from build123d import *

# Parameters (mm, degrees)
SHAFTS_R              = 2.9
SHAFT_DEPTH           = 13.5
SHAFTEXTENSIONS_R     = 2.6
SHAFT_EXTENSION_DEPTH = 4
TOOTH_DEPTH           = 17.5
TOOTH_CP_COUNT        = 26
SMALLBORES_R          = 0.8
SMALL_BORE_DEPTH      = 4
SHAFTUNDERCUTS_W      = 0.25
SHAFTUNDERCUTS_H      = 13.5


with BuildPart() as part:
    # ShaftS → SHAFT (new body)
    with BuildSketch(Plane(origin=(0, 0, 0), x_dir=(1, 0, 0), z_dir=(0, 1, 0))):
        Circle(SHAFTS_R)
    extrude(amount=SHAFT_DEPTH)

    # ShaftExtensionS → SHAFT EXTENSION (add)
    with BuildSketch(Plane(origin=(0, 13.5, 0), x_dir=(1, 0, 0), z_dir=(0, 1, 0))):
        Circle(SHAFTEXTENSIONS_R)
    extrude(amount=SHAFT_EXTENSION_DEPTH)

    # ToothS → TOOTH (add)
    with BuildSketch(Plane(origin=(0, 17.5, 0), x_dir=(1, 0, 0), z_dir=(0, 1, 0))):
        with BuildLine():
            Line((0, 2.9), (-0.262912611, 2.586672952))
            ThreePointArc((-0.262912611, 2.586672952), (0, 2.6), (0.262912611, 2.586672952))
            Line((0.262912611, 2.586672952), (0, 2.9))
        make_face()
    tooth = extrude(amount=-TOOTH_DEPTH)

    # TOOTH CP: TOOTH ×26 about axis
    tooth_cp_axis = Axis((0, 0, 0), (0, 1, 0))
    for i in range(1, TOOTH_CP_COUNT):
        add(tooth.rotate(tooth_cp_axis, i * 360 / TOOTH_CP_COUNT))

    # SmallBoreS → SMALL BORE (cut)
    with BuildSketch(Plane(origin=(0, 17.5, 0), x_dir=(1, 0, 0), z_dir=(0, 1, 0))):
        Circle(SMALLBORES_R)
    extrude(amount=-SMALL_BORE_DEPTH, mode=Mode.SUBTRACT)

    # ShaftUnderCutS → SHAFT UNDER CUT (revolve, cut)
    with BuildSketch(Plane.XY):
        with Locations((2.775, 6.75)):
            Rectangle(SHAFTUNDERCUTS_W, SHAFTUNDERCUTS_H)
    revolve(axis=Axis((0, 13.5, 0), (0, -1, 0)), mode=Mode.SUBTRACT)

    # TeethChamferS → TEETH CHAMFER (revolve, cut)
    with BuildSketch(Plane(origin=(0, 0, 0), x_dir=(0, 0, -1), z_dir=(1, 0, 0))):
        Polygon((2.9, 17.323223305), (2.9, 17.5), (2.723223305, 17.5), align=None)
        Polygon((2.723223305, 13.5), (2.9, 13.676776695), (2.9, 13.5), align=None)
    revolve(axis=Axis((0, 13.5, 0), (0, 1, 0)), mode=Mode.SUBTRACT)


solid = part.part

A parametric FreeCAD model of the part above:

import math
import FreeCAD as App
import Part
import Sketcher
from FreeCAD import Vector
Q = App.Units.Quantity

doc = App.newDocument("Part")
body = doc.addObject("PartDesign::Body", "Body")

# Sketch on XZ plane
sketch1 = body.newObject("Sketcher::SketchObject", "Sketch")
sketch1.AttachmentSupport = (doc.getObject("XZ_Plane"), [""])
sketch1.MapMode = "FlatFace"
sketch1.addGeometry(Part.Circle(Vector(0, 0, 0), Vector(0, 0, 1), 2.9), False)
sketch1.addConstraint(Sketcher.Constraint("Coincident", 0, 3, -1, 1))
sketch1.addConstraint(Sketcher.Constraint("Diameter", 0, Q("5.8 mm")))
pad1 = body.newObject("PartDesign::Pad", "Pad")
pad1.Profile = sketch1
pad1.Length = 13.5
pad1.Reversed = True

# Sketch on XZ plane
sketch2 = body.newObject("Sketcher::SketchObject", "Sketch001")
sketch2.AttachmentSupport = (doc.getObject("XZ_Plane"), [""])
sketch2.MapMode = "FlatFace"
sketch2.AttachmentOffset = App.Placement(Vector(0, 0, -13.5), App.Rotation())
sketch2.addGeometry(Part.Circle(Vector(0, 0, 0), Vector(0, 0, 1), 2.6), False)
sketch2.addConstraint(Sketcher.Constraint("Coincident", 0, 3, -1, 1))
sketch2.addConstraint(Sketcher.Constraint("Diameter", 0, Q("5.2 mm")))
pad2 = body.newObject("PartDesign::Pad", "Pad001")
pad2.Profile = sketch2
pad2.Length = 4
pad2.Reversed = True

# Sketch on XZ plane
sketch3 = body.newObject("Sketcher::SketchObject", "Sketch002")
sketch3.AttachmentSupport = (doc.getObject("XZ_Plane"), [""])
sketch3.MapMode = "FlatFace"
sketch3.AttachmentOffset = App.Placement(Vector(0, 0, -17.5), App.Rotation())
sketch3.addGeometry(Part.LineSegment(Vector(0, -2.9, 0), Vector(-0.26, -2.59, 0)), False)
sketch3.addGeometry(Part.ArcOfCircle(Part.Circle(Vector(0, 0, 0), Vector(0, 0, 1), 2.6), math.radians(-95.8), math.radians(-84.2)), False)
sketch3.addGeometry(Part.LineSegment(Vector(0.26, -2.59, 0), Vector(0, -2.9, 0)), False)
sketch3.addConstraint(Sketcher.Constraint("Coincident", 0, 2, 1, 1))
sketch3.addConstraint(Sketcher.Constraint("Coincident", 1, 2, 2, 1))
sketch3.addConstraint(Sketcher.Constraint("Coincident", 2, 2, 0, 1))
sketch3.addConstraint(Sketcher.Constraint("Coincident", 1, 3, -1, 1))
sketch3.addConstraint(Sketcher.Constraint("PointOnObject", 2, 2, -2))
sketch3.addConstraint(Sketcher.Constraint("Horizontal", 0, 2, 1, 2))
sketch3.addConstraint(Sketcher.Constraint("Radius", 1, Q("2.6 mm")))
sketch3.addConstraint(Sketcher.Constraint("Angle", 0, Q("130 deg")))
sketch3.addConstraint(Sketcher.Constraint("DistanceY", 2, 2, -1, 1, Q("2.9 mm")))
pad3 = body.newObject("PartDesign::Pad", "Pad002")
pad3.Profile = sketch3
pad3.Length = 17.5
doc.recompute()

polarpattern = body.newObject("PartDesign::PolarPattern", "PolarPattern")
polarpattern.Originals = [pad3]
polarpattern.Axis = (doc.getObject("Y_Axis"), [""])
polarpattern.Angle = 360
polarpattern.Occurrences = 26
body.Tip = polarpattern

# Sketch on XZ plane
sketch4 = body.newObject("Sketcher::SketchObject", "Sketch003")
sketch4.AttachmentSupport = (doc.getObject("XZ_Plane"), [""])
sketch4.MapMode = "FlatFace"
sketch4.AttachmentOffset = App.Placement(Vector(0, 0, -17.5), App.Rotation())
sketch4.addGeometry(Part.Circle(Vector(0, 0, 0), Vector(0, 0, 1), 0.8), False)
sketch4.addConstraint(Sketcher.Constraint("Coincident", 0, 3, -1, 1))
sketch4.addConstraint(Sketcher.Constraint("Diameter", 0, Q("1.6 mm")))
pocket1 = body.newObject("PartDesign::Pocket", "Pocket")
pocket1.Profile = sketch4
pocket1.Length = 4
pocket1.Reversed = True

# Sketch on XY plane
sketch5 = body.newObject("Sketcher::SketchObject", "Sketch004")
sketch5.AttachmentSupport = (doc.getObject("XY_Plane"), [""])
sketch5.MapMode = "FlatFace"
sketch5.addGeometry(Part.LineSegment(Vector(2.65, 13.5, 0), Vector(2.65, 0, 0)), False)
sketch5.addGeometry(Part.LineSegment(Vector(2.65, 0, 0), Vector(2.9, 0, 0)), False)
sketch5.addGeometry(Part.LineSegment(Vector(2.9, 0, 0), Vector(2.9, 13.5, 0)), False)
sketch5.addGeometry(Part.LineSegment(Vector(2.9, 13.5, 0), Vector(2.65, 13.5, 0)), False)
sketch5.addConstraint(Sketcher.Constraint("Coincident", 0, 2, 1, 1))
sketch5.addConstraint(Sketcher.Constraint("Coincident", 1, 2, 2, 1))
sketch5.addConstraint(Sketcher.Constraint("Coincident", 2, 2, 3, 1))
sketch5.addConstraint(Sketcher.Constraint("Coincident", 3, 2, 0, 1))
sketch5.addConstraint(Sketcher.Constraint("Vertical", 0))
sketch5.addConstraint(Sketcher.Constraint("Horizontal", 1))
sketch5.addConstraint(Sketcher.Constraint("Vertical", 2))
sketch5.addConstraint(Sketcher.Constraint("Horizontal", 3))
sketch5.addConstraint(Sketcher.Constraint("PointOnObject", 0, 2, -1))
sketch5.addConstraint(Sketcher.Constraint("DistanceY", 0, 2, 0, 1, Q("13.5 mm")))
sketch5.addConstraint(Sketcher.Constraint("DistanceX", 1, 1, 1, 2, Q("0.25 mm")))
sketch5.addConstraint(Sketcher.Constraint("DistanceX", -1, 1, 1, 2, Q("2.9 mm")))
groove = body.newObject("PartDesign::Groove", "Groove")
groove.Profile = sketch5
groove.ReferenceAxis = (sketch5, ["V_Axis"])
groove.Angle = 360

# Sketch on YZ plane
sketch6 = body.newObject("Sketcher::SketchObject", "Sketch005")
sketch6.AttachmentSupport = (doc.getObject("YZ_Plane"), [""])
sketch6.MapMode = "FlatFace"
sketch6.addGeometry(Part.LineSegment(Vector(17.32, -2.9, 0), Vector(17.5, -2.9, 0)), False)
sketch6.addGeometry(Part.LineSegment(Vector(17.5, -2.9, 0), Vector(17.5, -2.72, 0)), False)
sketch6.addGeometry(Part.LineSegment(Vector(17.5, -2.72, 0), Vector(17.32, -2.9, 0)), False)
sketch6.addGeometry(Part.LineSegment(Vector(13.68, -2.9, 0), Vector(13.5, -2.72, 0)), False)
sketch6.addGeometry(Part.LineSegment(Vector(13.5, -2.72, 0), Vector(13.5, -2.9, 0)), False)
sketch6.addGeometry(Part.LineSegment(Vector(13.5, -2.9, 0), Vector(13.68, -2.9, 0)), False)
sketch6.addConstraint(Sketcher.Constraint("Coincident", 0, 2, 1, 1))
sketch6.addConstraint(Sketcher.Constraint("Coincident", 1, 2, 2, 1))
sketch6.addConstraint(Sketcher.Constraint("Coincident", 2, 2, 0, 1))
sketch6.addConstraint(Sketcher.Constraint("Coincident", 3, 2, 4, 1))
sketch6.addConstraint(Sketcher.Constraint("Coincident", 4, 2, 5, 1))
sketch6.addConstraint(Sketcher.Constraint("Coincident", 5, 2, 3, 1))
sketch6.addConstraint(Sketcher.Constraint("Horizontal", 0))
sketch6.addConstraint(Sketcher.Constraint("Vertical", 1))
sketch6.addConstraint(Sketcher.Constraint("Vertical", 4))
sketch6.addConstraint(Sketcher.Constraint("Horizontal", 5))
sketch6.addConstraint(Sketcher.Constraint("Perpendicular", 2, 3))
sketch6.addConstraint(Sketcher.Constraint("Horizontal", 1, 2, 3, 2))
sketch6.addConstraint(Sketcher.Constraint("Horizontal", 2, 2, 4, 2))
sketch6.addConstraint(Sketcher.Constraint("Equal", 0, 5))
sketch6.addConstraint(Sketcher.Constraint("DistanceX", 3, 2, 1, 2, Q("4 mm")))
sketch6.addConstraint(Sketcher.Constraint("DistanceX", -1, 1, 0, 2, Q("17.5 mm")))
sketch6.addConstraint(Sketcher.Constraint("DistanceY", 0, 2, -1, 1, Q("2.9 mm")))
sketch6.addConstraint(Sketcher.Constraint("Distance", 2, Q("0.25 mm")))
groove2 = body.newObject("PartDesign::Groove", "Groove001")
groove2.Profile = sketch6
groove2.ReferenceAxis = (sketch6, ["H_Axis"])
groove2.Angle = 360

doc.recompute()
